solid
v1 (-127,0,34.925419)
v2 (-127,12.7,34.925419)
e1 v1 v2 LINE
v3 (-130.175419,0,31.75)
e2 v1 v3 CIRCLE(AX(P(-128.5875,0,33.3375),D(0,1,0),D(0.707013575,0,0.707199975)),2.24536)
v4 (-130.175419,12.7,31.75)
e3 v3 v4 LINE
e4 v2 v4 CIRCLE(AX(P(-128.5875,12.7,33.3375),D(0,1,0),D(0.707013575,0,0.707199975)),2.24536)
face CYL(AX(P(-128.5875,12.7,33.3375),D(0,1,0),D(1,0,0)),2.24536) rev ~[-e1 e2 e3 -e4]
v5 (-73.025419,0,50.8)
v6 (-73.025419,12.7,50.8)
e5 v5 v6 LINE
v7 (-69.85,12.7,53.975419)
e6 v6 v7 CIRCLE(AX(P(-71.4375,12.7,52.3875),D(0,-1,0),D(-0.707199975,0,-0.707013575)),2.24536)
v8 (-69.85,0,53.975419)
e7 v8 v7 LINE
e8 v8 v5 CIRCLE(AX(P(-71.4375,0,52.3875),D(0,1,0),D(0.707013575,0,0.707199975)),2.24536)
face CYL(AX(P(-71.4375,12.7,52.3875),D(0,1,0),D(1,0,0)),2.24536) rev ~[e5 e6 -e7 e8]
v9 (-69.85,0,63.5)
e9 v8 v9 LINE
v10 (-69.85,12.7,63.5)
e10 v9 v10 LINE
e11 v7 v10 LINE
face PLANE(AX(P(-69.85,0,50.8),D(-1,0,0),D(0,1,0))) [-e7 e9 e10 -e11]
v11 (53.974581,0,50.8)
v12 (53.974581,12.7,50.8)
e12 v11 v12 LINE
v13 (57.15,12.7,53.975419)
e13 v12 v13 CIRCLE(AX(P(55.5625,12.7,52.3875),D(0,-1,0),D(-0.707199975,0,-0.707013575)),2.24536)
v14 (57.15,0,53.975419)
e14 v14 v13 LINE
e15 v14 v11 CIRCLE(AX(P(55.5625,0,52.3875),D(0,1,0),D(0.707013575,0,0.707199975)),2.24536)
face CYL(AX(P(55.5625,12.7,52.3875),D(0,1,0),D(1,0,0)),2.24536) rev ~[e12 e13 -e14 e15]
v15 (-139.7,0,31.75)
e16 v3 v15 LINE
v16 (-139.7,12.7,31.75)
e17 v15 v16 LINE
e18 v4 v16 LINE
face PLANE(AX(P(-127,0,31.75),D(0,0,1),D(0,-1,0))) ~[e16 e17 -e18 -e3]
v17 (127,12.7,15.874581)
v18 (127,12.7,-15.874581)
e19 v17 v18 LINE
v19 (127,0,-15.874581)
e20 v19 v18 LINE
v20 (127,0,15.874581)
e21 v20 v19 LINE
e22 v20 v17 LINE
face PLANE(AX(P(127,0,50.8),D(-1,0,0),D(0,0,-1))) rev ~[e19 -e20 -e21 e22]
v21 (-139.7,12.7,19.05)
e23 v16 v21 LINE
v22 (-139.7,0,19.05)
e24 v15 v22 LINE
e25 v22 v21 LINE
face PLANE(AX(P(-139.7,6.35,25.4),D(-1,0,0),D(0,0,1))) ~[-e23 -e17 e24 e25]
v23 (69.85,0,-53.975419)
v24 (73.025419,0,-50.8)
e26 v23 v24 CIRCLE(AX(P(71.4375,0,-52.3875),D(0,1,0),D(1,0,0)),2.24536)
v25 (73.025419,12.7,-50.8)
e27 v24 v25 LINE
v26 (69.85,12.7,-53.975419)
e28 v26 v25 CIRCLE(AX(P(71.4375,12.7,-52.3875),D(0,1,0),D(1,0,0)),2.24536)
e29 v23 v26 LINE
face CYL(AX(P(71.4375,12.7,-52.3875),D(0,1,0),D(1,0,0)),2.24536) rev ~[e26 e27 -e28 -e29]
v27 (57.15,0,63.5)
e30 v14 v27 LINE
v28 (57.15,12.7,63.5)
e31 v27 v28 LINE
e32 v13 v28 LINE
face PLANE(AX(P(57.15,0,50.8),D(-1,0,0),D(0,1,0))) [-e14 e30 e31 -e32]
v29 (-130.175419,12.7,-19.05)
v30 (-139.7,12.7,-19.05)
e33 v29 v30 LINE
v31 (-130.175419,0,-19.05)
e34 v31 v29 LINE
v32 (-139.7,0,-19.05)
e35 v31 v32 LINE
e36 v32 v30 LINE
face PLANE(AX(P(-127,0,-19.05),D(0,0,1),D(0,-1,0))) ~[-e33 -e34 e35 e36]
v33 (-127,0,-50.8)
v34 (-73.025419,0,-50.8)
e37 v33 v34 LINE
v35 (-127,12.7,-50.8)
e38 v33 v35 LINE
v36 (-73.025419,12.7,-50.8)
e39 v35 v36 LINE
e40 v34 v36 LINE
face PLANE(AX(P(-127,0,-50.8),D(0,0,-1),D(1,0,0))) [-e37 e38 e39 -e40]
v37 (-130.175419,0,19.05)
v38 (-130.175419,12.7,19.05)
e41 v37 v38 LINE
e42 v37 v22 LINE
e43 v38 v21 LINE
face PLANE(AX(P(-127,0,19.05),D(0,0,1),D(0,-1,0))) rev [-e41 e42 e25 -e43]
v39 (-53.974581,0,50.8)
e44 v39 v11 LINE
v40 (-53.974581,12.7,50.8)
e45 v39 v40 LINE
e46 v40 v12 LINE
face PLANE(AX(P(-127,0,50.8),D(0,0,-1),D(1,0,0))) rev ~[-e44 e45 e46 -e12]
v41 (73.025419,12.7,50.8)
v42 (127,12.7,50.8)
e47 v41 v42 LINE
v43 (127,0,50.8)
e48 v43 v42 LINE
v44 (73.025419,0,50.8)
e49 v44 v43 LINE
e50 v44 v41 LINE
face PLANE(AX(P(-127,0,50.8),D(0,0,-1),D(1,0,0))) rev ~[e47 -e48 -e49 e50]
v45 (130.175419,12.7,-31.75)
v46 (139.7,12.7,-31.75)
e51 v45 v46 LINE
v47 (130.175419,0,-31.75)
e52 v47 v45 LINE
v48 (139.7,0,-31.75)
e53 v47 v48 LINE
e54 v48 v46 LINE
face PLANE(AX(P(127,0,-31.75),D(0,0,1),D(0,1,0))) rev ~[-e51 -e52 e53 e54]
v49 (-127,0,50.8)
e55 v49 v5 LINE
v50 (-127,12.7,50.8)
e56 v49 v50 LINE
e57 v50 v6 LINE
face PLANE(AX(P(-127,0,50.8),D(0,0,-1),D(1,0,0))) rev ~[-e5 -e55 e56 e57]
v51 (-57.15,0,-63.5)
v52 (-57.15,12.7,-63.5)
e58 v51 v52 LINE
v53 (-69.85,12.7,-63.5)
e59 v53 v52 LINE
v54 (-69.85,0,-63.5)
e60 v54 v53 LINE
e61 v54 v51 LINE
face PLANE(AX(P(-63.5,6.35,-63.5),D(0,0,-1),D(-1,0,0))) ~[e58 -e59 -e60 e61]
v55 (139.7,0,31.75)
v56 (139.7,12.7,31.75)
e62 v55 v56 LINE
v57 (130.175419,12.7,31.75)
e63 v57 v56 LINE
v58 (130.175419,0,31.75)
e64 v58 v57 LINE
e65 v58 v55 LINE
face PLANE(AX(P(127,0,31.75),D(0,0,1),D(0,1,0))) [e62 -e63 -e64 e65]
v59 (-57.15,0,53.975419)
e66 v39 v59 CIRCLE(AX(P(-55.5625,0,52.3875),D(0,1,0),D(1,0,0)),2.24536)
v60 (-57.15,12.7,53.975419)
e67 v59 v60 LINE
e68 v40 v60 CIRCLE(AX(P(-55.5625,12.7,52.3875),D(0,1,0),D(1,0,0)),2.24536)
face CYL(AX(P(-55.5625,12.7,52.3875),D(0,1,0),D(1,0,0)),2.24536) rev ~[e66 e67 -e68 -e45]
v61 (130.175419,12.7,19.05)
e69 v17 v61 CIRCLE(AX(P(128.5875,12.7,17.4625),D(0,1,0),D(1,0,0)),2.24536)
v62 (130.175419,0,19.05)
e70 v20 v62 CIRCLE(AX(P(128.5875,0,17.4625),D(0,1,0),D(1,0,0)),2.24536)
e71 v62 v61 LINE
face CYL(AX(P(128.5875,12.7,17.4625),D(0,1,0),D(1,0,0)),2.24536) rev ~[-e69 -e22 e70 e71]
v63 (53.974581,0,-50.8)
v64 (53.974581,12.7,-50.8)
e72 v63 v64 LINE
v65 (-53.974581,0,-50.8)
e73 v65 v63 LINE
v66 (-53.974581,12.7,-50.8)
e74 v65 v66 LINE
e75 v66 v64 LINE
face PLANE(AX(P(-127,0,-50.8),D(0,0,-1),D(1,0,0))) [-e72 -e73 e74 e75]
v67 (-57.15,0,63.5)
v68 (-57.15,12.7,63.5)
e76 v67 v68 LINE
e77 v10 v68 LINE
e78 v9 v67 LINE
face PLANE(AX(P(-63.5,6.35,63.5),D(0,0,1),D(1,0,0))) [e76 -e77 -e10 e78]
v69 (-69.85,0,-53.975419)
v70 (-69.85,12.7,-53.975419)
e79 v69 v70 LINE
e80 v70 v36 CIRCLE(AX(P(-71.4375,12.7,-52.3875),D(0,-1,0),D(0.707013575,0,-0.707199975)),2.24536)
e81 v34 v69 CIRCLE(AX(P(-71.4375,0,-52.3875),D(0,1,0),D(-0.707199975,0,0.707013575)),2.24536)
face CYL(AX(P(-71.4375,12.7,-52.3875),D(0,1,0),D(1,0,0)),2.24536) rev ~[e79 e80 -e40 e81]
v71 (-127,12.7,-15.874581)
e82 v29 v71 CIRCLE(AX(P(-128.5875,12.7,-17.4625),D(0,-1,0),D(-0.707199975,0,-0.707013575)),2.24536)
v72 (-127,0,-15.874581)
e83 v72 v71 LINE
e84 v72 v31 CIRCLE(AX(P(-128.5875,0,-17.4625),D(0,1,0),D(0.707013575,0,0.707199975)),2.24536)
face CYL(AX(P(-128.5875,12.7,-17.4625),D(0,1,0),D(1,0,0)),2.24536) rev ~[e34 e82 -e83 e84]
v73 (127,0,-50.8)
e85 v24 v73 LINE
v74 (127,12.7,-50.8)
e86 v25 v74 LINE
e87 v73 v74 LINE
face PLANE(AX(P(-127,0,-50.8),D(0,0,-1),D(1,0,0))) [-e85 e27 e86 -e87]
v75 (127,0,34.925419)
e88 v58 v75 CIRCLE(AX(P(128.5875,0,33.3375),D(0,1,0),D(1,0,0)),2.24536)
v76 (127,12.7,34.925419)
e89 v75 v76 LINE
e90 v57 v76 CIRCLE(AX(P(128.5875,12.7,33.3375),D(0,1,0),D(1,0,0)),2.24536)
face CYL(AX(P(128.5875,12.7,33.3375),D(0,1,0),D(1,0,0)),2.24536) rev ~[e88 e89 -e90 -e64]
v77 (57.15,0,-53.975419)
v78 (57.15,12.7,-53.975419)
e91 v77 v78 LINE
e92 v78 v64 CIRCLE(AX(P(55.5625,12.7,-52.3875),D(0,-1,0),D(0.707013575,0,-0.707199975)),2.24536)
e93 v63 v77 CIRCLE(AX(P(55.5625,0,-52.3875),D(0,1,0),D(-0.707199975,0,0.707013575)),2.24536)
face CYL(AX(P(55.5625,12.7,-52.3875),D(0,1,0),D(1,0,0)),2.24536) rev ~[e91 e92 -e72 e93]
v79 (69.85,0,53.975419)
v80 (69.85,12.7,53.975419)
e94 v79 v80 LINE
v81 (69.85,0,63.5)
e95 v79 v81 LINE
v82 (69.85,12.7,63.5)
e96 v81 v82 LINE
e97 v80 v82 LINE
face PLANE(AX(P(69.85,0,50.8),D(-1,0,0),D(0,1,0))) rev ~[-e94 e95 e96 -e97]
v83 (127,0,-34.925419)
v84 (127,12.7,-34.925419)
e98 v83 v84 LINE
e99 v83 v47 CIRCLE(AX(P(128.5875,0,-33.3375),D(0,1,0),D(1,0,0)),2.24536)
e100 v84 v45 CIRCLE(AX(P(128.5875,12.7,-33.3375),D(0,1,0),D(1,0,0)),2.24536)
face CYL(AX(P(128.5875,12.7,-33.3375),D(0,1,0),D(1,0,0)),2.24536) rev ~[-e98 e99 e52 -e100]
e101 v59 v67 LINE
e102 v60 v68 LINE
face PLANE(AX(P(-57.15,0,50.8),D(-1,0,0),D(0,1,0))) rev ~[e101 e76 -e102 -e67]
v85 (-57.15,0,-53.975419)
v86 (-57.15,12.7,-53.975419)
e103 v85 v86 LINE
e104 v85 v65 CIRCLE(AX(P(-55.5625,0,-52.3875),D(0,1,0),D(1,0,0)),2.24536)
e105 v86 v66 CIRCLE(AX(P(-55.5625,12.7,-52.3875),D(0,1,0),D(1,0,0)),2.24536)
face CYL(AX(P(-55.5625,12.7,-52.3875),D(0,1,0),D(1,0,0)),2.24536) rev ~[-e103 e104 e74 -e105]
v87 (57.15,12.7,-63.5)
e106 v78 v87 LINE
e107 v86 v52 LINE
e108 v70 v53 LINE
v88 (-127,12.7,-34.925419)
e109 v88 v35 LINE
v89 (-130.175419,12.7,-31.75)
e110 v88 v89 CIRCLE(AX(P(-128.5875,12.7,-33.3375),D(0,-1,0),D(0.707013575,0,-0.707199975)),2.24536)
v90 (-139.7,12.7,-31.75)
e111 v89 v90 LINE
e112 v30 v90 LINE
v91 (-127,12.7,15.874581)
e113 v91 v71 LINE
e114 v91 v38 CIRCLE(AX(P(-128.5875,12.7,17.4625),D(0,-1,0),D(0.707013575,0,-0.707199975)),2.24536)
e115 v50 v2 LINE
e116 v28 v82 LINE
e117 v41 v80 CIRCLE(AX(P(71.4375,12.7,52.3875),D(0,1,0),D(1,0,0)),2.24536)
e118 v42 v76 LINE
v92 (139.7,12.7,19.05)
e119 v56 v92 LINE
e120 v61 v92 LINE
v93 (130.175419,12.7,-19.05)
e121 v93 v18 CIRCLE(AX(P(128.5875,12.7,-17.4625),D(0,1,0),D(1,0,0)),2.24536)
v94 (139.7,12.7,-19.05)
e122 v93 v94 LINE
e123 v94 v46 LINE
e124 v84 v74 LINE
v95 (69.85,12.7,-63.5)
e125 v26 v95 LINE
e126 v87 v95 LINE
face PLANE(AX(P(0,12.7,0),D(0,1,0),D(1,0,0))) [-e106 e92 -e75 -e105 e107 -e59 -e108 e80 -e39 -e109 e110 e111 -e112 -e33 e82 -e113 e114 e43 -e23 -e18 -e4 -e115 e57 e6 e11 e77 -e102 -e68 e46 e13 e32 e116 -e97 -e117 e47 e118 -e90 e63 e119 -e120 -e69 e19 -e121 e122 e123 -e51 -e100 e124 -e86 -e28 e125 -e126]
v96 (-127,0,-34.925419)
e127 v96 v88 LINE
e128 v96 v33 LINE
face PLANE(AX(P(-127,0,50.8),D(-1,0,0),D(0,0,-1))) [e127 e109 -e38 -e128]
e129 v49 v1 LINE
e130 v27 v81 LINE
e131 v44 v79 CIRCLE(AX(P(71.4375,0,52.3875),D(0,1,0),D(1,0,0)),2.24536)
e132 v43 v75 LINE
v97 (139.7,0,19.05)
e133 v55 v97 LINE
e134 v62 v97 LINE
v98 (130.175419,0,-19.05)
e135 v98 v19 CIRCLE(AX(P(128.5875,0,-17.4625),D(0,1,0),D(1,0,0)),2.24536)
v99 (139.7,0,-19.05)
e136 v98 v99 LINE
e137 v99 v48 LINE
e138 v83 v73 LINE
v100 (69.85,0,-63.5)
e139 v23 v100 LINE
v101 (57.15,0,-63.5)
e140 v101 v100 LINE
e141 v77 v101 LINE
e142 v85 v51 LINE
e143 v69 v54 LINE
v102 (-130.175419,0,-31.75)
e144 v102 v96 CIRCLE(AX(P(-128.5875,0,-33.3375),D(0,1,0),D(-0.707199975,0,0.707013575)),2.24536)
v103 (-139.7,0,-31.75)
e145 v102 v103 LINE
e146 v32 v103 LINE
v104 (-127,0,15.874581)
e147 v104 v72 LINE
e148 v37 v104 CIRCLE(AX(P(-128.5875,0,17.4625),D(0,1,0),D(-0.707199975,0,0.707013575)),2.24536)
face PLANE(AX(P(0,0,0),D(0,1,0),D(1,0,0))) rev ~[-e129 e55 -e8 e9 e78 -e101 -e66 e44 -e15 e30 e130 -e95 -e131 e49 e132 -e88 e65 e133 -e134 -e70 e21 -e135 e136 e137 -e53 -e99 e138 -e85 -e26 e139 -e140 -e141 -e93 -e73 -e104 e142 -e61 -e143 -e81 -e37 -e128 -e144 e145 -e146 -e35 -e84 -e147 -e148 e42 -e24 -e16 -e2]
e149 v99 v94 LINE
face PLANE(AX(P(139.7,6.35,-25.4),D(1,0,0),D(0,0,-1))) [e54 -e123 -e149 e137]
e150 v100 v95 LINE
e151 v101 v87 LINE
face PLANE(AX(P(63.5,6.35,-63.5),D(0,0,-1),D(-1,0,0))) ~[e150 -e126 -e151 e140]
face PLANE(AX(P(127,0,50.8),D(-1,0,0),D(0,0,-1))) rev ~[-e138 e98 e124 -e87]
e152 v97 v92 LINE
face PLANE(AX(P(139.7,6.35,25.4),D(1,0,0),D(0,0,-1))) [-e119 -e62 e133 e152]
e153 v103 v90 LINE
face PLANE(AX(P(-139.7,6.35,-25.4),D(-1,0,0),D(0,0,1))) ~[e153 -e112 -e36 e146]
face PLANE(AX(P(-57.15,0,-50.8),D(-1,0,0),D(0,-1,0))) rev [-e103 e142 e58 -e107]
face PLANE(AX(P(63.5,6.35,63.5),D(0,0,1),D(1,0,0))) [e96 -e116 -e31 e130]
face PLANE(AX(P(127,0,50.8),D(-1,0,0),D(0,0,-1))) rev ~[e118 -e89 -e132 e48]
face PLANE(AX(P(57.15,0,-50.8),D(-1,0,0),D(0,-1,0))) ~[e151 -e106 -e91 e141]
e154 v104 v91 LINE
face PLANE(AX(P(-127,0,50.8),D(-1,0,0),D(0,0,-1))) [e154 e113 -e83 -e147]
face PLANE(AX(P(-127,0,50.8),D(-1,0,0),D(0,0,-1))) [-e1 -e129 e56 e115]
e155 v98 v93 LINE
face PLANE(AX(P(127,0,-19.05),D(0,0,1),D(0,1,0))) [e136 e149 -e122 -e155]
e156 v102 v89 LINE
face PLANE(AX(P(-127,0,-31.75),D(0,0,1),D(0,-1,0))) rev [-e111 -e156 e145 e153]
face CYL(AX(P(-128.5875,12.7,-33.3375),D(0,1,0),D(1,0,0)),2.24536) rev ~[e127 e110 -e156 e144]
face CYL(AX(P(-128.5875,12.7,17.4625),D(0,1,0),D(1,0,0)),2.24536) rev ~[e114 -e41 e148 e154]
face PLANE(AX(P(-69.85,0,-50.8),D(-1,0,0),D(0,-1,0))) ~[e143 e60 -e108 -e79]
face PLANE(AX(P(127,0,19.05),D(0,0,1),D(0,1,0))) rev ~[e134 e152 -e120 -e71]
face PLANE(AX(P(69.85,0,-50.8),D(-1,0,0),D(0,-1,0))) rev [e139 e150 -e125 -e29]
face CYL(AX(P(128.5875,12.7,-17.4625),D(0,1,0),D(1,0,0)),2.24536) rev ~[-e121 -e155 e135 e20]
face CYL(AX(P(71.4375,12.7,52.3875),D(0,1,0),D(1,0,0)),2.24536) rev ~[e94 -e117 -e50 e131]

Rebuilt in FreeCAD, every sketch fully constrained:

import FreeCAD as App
import Part
import Sketcher

V = App.Vector
Q = App.Units.Quantity


def add_polygon(sketch, points):
    """Adds a closed chain of lines whose ends are joined by coincident constraints."""
    first, n = sketch.GeometryCount, len(points)
    for a, b in zip(points, points[1:] + points[:1]):
        sketch.addGeometry(Part.LineSegment(App.Vector(*a, 0), App.Vector(*b, 0)), False)
    for i in range(n):
        sketch.addConstraint(Sketcher.Constraint("Coincident", first + i, 2, first + (i + 1) % n, 1))

doc = App.newDocument("Part")
body = doc.addObject("PartDesign::Body", "Body")

# Sketch on XZ plane
sketch1 = body.newObject("Sketcher::SketchObject", "Sketch")
sketch1.AttachmentSupport = (doc.getObject("XZ_Plane"), [""])
sketch1.MapMode = "FlatFace"
add_polygon(sketch1, [(-127, -51), (-127, 51), (127, 51), (127, -51)])  # lines 0-3
sketch1.addConstraint(Sketcher.Constraint("Vertical", 0))
sketch1.addConstraint(Sketcher.Constraint("Horizontal", 1))
sketch1.addConstraint(Sketcher.Constraint("Vertical", 2))
sketch1.addConstraint(Sketcher.Constraint("Horizontal", 3))
sketch1.addConstraint(Sketcher.Constraint("Symmetric", 0, 2, 2, 2, -1, 1))
sketch1.addConstraint(Sketcher.Constraint("DistanceX", 1, 1, 1, 2, Q("10 in")))
sketch1.addConstraint(Sketcher.Constraint("DistanceY", 0, 1, 0, 2, Q("4 in")))
pad1 = body.newObject("PartDesign::Pad", "Pad")
pad1.Profile = sketch1
pad1.Length = Q("0.5 in")
pad1.Reversed = True

# Sketch on XY plane
sketch2 = body.newObject("Sketcher::SketchObject", "Sketch001")
sketch2.AttachmentSupport = (doc.getObject("XY_Plane"), [""])
sketch2.MapMode = "FlatFace"
sketch2.AttachmentOffset = App.Placement(V(0, 0, 2 * 25.4), App.Rotation())
add_polygon(sketch2, [(-70, 13), (-70, 0), (-57, 0), (-57, 13)])  # lines 0-3
add_polygon(sketch2, [(57, 13), (57, 0), (70, 0), (70, 13)])  # lines 4-7
sketch2.addConstraint(Sketcher.Constraint("Vertical", 0))
sketch2.addConstraint(Sketcher.Constraint("Horizontal", 1))
sketch2.addConstraint(Sketcher.Constraint("Vertical", 2))
sketch2.addConstraint(Sketcher.Constraint("Horizontal", 3))
sketch2.addConstraint(Sketcher.Constraint("Vertical", 4))
sketch2.addConstraint(Sketcher.Constraint("Horizontal", 5))
sketch2.addConstraint(Sketcher.Constraint("Vertical", 6))
sketch2.addConstraint(Sketcher.Constraint("Horizontal", 7))
sketch2.addConstraint(Sketcher.Constraint("Symmetric", 1, 2, 4, 2, -1, 1))
sketch2.addConstraint(Sketcher.Constraint("Symmetric", 0, 2, 5, 2, -2))
sketch2.addConstraint(Sketcher.Constraint("Horizontal", 3, 2, 6, 2))
sketch2.addConstraint(Sketcher.Constraint("Equal", 7, 0))
sketch2.addConstraint(Sketcher.Constraint("DistanceX", 1, 1, 1, 2, Q("0.5 in")))
sketch2.addConstraint(Sketcher.Constraint("DistanceX", 0, 2, 4, 2, Q("5 in")))
pad2 = body.newObject("PartDesign::Pad", "Pad001")
pad2.Profile = sketch2
pad2.Length = Q("0.5 in")
doc.recompute()

mirrored = body.newObject("PartDesign::Mirrored", "Mirrored")
mirrored.Originals = [pad2]
mirrored.MirrorPlane = (doc.getObject("XY_Plane"), [""])
body.Tip = mirrored

# Sketch on XZ plane
sketch3 = body.newObject("Sketcher::SketchObject", "Sketch002")
sketch3.AttachmentSupport = (doc.getObject("XZ_Plane"), [""])
sketch3.MapMode = "FlatFace"
sketch3.AttachmentOffset = App.Placement(V(0, 0, -0.5 * 25.4), App.Rotation())
sketch3.addGeometry(Part.Circle(V(-71.4, -52.4, 0), V(0, 0, 1), 2.2), False)
sketch3.addGeometry(Part.Circle(V(-55.6, -52.4, 0), V(0, 0, 1), 2.2), False)
sketch3.addGeometry(Part.Circle(V(55.6, -52.4, 0), V(0, 0, 1), 2.2), False)
sketch3.addGeometry(Part.Circle(V(71.4, -52.4, 0), V(0, 0, 1), 2.2), False)
sketch3.addGeometry(Part.Circle(V(71.4, 52.4, 0), V(0, 0, 1), 2.2), False)
sketch3.addGeometry(Part.Circle(V(55.6, 52.4, 0), V(0, 0, 1), 2.2), False)
sketch3.addGeometry(Part.Circle(V(-55.6, 52.4, 0), V(0, 0, 1), 2.2), False)
sketch3.addGeometry(Part.Circle(V(-71.4, 52.4, 0), V(0, 0, 1), 2.2), False)
sketch3.addConstraint(Sketcher.Constraint("Equal", 0, 1))
sketch3.addConstraint(Sketcher.Constraint("Equal", 1, 2))
sketch3.addConstraint(Sketcher.Constraint("Equal", 2, 3))
sketch3.addConstraint(Sketcher.Constraint("Equal", 3, 4))
sketch3.addConstraint(Sketcher.Constraint("Equal", 4, 5))
sketch3.addConstraint(Sketcher.Constraint("Equal", 5, 6))
sketch3.addConstraint(Sketcher.Constraint("Equal", 6, 7))
sketch3.addConstraint(Sketcher.Constraint("Symmetric", 0, 3, 4, 3, -1, 1))
sketch3.addConstraint(Sketcher.Constraint("Symmetric", 1, 3, 5, 3, -1, 1))
sketch3.addConstraint(Sketcher.Constraint("Symmetric", 2, 3, 6, 3, -1, 1))
sketch3.addConstraint(Sketcher.Constraint("Symmetric", 3, 3, 7, 3, -1, 1))
sketch3.addConstraint(Sketcher.Constraint("Symmetric", 1, 3, 2, 3, -2))
sketch3.addConstraint(Sketcher.Constraint("Symmetric", 0, 3, 3, 3, -2))
sketch3.addConstraint(Sketcher.Constraint("Horizontal", 0, 3, 1, 3))
sketch3.addConstraint(Sketcher.Constraint("DistanceX", 0, 3, 2, 3, Q("5 in")))
sketch3.addConstraint(Sketcher.Constraint("Diameter", 0, Q("0.1768 in")))
sketch3.addConstraint(Sketcher.Constraint("DistanceX", 0, 3, -1, 1, Q("2.8125 in")))
sketch3.addConstraint(Sketcher.Constraint("DistanceY", 0, 3, -1, 1, Q("2.0625 in")))
pocket1 = body.newObject("PartDesign::Pocket", "Pocket")
pocket1.Profile = sketch3
pocket1.Length = Q("0.5 in")
pocket1.Reversed = True

# Sketch on YZ plane
sketch4 = body.newObject("Sketcher::SketchObject", "Sketch003")
sketch4.AttachmentSupport = (doc.getObject("YZ_Plane"), [""])
sketch4.MapMode = "FlatFace"
sketch4.AttachmentOffset = App.Placement(V(0, 0, 5 * 25.4), App.Rotation())
add_polygon(sketch4, [(13, 32), (0, 32), (0, 19), (13, 19)])  # lines 0-3
add_polygon(sketch4, [(13, -19), (0, -19), (0, -32), (13, -32)])  # lines 4-7
sketch4.addConstraint(Sketcher.Constraint("Horizontal", 0))
sketch4.addConstraint(Sketcher.Constraint("Vertical", 1))
sketch4.addConstraint(Sketcher.Constraint("Horizontal", 2))
sketch4.addConstraint(Sketcher.Constraint("Vertical", 3))
sketch4.addConstraint(Sketcher.Constraint("Horizontal", 4))
sketch4.addConstraint(Sketcher.Constraint("Vertical", 5))
sketch4.addConstraint(Sketcher.Constraint("Horizontal", 6))
sketch4.addConstraint(Sketcher.Constraint("Vertical", 7))
sketch4.addConstraint(Sketcher.Constraint("Symmetric", 1, 2, 4, 2, -1, 1))
sketch4.addConstraint(Sketcher.Constraint("Symmetric", 0, 2, 5, 2, -1))
sketch4.addConstraint(Sketcher.Constraint("Vertical", 3, 2, 6, 2))
sketch4.addConstraint(Sketcher.Constraint("Equal", 6, 1))
sketch4.addConstraint(Sketcher.Constraint("DistanceX", 0, 2, 0, 1, Q("0.5 in")))
sketch4.addConstraint(Sketcher.Constraint("DistanceY", 4, 2, 0, 2, Q("2 in")))
pad3 = body.newObject("PartDesign::Pad", "Pad002")
pad3.Profile = sketch4
pad3.Length = Q("0.5 in")
doc.recompute()

mirrored2 = body.newObject("PartDesign::Mirrored", "Mirrored001")
mirrored2.Originals = [pad3]
mirrored2.MirrorPlane = (doc.getObject("YZ_Plane"), [""])
body.Tip = mirrored2

# Sketch on XZ plane
sketch5 = body.newObject("Sketcher::SketchObject", "Sketch004")
sketch5.AttachmentSupport = (doc.getObject("XZ_Plane"), [""])
sketch5.MapMode = "FlatFace"
sketch5.AttachmentOffset = App.Placement(V(0, 0, -0.5 * 25.4), App.Rotation())
sketch5.addGeometry(Part.Circle(V(128.6, -33.3, 0), V(0, 0, 1), 2.2), False)
sketch5.addGeometry(Part.Circle(V(128.6, -17.5, 0), V(0, 0, 1), 2.2), False)
sketch5.addGeometry(Part.Circle(V(128.6, 17.5, 0), V(0, 0, 1), 2.2), False)
sketch5.addGeometry(Part.Circle(V(128.6, 33.3, 0), V(0, 0, 1), 2.2), False)
sketch5.addGeometry(Part.Circle(V(-128.6, 33.3, 0), V(0, 0, 1), 2.2), False)
sketch5.addGeometry(Part.Circle(V(-128.6, 17.5, 0), V(0, 0, 1), 2.2), False)
sketch5.addGeometry(Part.Circle(V(-128.6, -17.5, 0), V(0, 0, 1), 2.2), False)
sketch5.addGeometry(Part.Circle(V(-128.6, -33.3, 0), V(0, 0, 1), 2.2), False)
sketch5.addConstraint(Sketcher.Constraint("Equal", 0, 1))
sketch5.addConstraint(Sketcher.Constraint("Equal", 1, 2))
sketch5.addConstraint(Sketcher.Constraint("Equal", 2, 3))
sketch5.addConstraint(Sketcher.Constraint("Equal", 3, 4))
sketch5.addConstraint(Sketcher.Constraint("Equal", 4, 5))
sketch5.addConstraint(Sketcher.Constraint("Equal", 5, 6))
sketch5.addConstraint(Sketcher.Constraint("Equal", 6, 7))
sketch5.addConstraint(Sketcher.Constraint("Symmetric", 0, 3, 4, 3, -1, 1))
sketch5.addConstraint(Sketcher.Constraint("Symmetric", 1, 3, 5, 3, -1, 1))
sketch5.addConstraint(Sketcher.Constraint("Symmetric", 2, 3, 6, 3, -1, 1))
sketch5.addConstraint(Sketcher.Constraint("Symmetric", 3, 3, 7, 3, -1, 1))
sketch5.addConstraint(Sketcher.Constraint("Symmetric", 3, 3, 4, 3, -2))
sketch5.addConstraint(Sketcher.Constraint("Symmetric", 2, 3, 5, 3, -2))
sketch5.addConstraint(Sketcher.Constraint("Vertical", 0, 3, 1, 3))
sketch5.addConstraint(Sketcher.Constraint("DistanceY", 0, 3, 2, 3, Q("2 in")))
sketch5.addConstraint(Sketcher.Constraint("Diameter", 0, Q("0.1768 in")))
sketch5.addConstraint(Sketcher.Constraint("DistanceX", -1, 1, 0, 3, Q("5.0625 in")))
sketch5.addConstraint(Sketcher.Constraint("DistanceY", 0, 3, -1, 1, Q("1.3125 in")))
pocket2 = body.newObject("PartDesign::Pocket", "Pocket001")
pocket2.Profile = sketch5
pocket2.Length = Q("0.5 in")
pocket2.Reversed = True

doc.recompute()
